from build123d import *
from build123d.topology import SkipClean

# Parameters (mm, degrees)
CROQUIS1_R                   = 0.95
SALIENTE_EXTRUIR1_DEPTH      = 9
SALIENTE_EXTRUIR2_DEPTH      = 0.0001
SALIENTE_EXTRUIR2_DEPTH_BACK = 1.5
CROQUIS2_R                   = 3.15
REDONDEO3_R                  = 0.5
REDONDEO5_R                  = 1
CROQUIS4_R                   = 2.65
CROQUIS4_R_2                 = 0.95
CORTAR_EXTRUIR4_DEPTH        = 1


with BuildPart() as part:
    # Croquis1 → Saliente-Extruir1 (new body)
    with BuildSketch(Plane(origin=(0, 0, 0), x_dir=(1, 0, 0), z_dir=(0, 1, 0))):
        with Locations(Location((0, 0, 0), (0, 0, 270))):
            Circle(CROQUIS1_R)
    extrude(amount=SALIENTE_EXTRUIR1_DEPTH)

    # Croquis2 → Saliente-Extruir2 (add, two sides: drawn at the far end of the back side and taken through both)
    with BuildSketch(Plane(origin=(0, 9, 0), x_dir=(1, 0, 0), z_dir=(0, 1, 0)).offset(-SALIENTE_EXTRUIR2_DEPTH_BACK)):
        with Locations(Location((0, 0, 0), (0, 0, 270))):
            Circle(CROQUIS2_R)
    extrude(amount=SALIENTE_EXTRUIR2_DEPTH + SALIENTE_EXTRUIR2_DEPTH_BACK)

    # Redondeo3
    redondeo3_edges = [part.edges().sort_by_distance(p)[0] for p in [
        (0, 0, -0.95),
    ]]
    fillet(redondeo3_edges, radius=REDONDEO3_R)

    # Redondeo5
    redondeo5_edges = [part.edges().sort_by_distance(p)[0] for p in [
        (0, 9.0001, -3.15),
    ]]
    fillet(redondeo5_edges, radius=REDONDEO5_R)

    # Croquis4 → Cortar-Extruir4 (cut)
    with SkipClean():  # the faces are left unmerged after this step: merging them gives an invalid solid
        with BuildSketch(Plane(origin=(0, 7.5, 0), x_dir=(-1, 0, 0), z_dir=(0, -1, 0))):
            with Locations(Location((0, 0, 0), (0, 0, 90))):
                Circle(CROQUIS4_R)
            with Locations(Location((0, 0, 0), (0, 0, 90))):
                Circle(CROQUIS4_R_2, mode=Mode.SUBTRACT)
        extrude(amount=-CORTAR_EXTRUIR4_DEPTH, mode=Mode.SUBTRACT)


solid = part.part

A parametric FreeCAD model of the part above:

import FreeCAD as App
import Part
import Sketcher
Q = App.Units.Quantity


def edges_at(feature, points):
    """Names of the edges that pass closest to the given points."""
    edges = feature.Shape.Edges
    near = lambda p: min(range(len(edges)), key=lambda i: edges[i].distToShape(Part.Vertex(*p))[0])
    return sorted({f"Edge{near(p) + 1}" for p in points})

doc = App.newDocument("Part")
body = doc.addObject("PartDesign::Body", "Body")

# Sketch on XZ plane
sketch1 = body.newObject("Sketcher::SketchObject", "Sketch")
sketch1.AttachmentSupport = (doc.getObject("XZ_Plane"), [""])
sketch1.MapMode = "FlatFace"
sketch1.addGeometry(Part.Circle(App.Vector(0, 0, 0), App.Vector(0, 0, 1), 0.9), False)
sketch1.addConstraint([
    Sketcher.Constraint("Coincident", 0, 3, -1, 1),
    Sketcher.Constraint("Diameter", 0, Q("1.9 mm")),
])
pad1 = body.newObject("PartDesign::Pad", "Pad")
pad1.Profile = sketch1
pad1.Length = 9
pad1.Reversed = True

# Sketch on XZ plane
sketch2 = body.newObject("Sketcher::SketchObject", "Sketch001")
sketch2.AttachmentSupport = (doc.getObject("XZ_Plane"), [""])
sketch2.MapMode = "FlatFace"
sketch2.AttachmentOffset = App.Placement(App.Vector(0, 0, -9), App.Rotation())
sketch2.addGeometry(Part.Circle(App.Vector(0, 0, 0), App.Vector(0, 0, 1), 3.1), False)
sketch2.addConstraint([
    Sketcher.Constraint("Coincident", 0, 3, -1, 1),
    Sketcher.Constraint("Diameter", 0, Q("6.3 mm")),
])
pad2 = body.newObject("PartDesign::Pad", "Pad001")
pad2.Profile = sketch2
pad2.Type = "TwoLengths"
pad2.Length = 0.0001
pad2.Length2 = 1.5
pad2.Reversed = True
doc.recompute()

fillet = body.newObject("PartDesign::Fillet", "Fillet")
fillet.Base = (pad2, edges_at(pad2, [(0, 0, -0.95)]))
fillet.Radius = 0.5
doc.recompute()

fillet2 = body.newObject("PartDesign::Fillet", "Fillet001")
fillet2.Base = (fillet, edges_at(fillet, [(0, 9, -3.15)]))
fillet2.Radius = 1

# Sketch on XZ plane
sketch3 = body.newObject("Sketcher::SketchObject", "Sketch002")
sketch3.AttachmentSupport = (doc.getObject("XZ_Plane"), [""])
sketch3.MapMode = "FlatFace"
sketch3.AttachmentOffset = App.Placement(App.Vector(0, 0, -7.5), App.Rotation())
sketch3.addGeometry([
    Part.Circle(App.Vector(0, 0, 0), App.Vector(0, 0, 1), 2.6),
    Part.Circle(App.Vector(0, 0, 0), App.Vector(0, 0, 1), 0.9),
], False)
sketch3.addConstraint([
    Sketcher.Constraint("Coincident", 0, 3, -1, 1),
    Sketcher.Constraint("Coincident", 1, 3, -1, 1),
    Sketcher.Constraint("Diameter", 0, Q("5.3 mm")),
    Sketcher.Constraint("Diameter", 1, Q("1.9 mm")),
])
pocket1 = body.newObject("PartDesign::Pocket", "Pocket")
pocket1.Profile = sketch3
pocket1.Length = 1

doc.recompute()
